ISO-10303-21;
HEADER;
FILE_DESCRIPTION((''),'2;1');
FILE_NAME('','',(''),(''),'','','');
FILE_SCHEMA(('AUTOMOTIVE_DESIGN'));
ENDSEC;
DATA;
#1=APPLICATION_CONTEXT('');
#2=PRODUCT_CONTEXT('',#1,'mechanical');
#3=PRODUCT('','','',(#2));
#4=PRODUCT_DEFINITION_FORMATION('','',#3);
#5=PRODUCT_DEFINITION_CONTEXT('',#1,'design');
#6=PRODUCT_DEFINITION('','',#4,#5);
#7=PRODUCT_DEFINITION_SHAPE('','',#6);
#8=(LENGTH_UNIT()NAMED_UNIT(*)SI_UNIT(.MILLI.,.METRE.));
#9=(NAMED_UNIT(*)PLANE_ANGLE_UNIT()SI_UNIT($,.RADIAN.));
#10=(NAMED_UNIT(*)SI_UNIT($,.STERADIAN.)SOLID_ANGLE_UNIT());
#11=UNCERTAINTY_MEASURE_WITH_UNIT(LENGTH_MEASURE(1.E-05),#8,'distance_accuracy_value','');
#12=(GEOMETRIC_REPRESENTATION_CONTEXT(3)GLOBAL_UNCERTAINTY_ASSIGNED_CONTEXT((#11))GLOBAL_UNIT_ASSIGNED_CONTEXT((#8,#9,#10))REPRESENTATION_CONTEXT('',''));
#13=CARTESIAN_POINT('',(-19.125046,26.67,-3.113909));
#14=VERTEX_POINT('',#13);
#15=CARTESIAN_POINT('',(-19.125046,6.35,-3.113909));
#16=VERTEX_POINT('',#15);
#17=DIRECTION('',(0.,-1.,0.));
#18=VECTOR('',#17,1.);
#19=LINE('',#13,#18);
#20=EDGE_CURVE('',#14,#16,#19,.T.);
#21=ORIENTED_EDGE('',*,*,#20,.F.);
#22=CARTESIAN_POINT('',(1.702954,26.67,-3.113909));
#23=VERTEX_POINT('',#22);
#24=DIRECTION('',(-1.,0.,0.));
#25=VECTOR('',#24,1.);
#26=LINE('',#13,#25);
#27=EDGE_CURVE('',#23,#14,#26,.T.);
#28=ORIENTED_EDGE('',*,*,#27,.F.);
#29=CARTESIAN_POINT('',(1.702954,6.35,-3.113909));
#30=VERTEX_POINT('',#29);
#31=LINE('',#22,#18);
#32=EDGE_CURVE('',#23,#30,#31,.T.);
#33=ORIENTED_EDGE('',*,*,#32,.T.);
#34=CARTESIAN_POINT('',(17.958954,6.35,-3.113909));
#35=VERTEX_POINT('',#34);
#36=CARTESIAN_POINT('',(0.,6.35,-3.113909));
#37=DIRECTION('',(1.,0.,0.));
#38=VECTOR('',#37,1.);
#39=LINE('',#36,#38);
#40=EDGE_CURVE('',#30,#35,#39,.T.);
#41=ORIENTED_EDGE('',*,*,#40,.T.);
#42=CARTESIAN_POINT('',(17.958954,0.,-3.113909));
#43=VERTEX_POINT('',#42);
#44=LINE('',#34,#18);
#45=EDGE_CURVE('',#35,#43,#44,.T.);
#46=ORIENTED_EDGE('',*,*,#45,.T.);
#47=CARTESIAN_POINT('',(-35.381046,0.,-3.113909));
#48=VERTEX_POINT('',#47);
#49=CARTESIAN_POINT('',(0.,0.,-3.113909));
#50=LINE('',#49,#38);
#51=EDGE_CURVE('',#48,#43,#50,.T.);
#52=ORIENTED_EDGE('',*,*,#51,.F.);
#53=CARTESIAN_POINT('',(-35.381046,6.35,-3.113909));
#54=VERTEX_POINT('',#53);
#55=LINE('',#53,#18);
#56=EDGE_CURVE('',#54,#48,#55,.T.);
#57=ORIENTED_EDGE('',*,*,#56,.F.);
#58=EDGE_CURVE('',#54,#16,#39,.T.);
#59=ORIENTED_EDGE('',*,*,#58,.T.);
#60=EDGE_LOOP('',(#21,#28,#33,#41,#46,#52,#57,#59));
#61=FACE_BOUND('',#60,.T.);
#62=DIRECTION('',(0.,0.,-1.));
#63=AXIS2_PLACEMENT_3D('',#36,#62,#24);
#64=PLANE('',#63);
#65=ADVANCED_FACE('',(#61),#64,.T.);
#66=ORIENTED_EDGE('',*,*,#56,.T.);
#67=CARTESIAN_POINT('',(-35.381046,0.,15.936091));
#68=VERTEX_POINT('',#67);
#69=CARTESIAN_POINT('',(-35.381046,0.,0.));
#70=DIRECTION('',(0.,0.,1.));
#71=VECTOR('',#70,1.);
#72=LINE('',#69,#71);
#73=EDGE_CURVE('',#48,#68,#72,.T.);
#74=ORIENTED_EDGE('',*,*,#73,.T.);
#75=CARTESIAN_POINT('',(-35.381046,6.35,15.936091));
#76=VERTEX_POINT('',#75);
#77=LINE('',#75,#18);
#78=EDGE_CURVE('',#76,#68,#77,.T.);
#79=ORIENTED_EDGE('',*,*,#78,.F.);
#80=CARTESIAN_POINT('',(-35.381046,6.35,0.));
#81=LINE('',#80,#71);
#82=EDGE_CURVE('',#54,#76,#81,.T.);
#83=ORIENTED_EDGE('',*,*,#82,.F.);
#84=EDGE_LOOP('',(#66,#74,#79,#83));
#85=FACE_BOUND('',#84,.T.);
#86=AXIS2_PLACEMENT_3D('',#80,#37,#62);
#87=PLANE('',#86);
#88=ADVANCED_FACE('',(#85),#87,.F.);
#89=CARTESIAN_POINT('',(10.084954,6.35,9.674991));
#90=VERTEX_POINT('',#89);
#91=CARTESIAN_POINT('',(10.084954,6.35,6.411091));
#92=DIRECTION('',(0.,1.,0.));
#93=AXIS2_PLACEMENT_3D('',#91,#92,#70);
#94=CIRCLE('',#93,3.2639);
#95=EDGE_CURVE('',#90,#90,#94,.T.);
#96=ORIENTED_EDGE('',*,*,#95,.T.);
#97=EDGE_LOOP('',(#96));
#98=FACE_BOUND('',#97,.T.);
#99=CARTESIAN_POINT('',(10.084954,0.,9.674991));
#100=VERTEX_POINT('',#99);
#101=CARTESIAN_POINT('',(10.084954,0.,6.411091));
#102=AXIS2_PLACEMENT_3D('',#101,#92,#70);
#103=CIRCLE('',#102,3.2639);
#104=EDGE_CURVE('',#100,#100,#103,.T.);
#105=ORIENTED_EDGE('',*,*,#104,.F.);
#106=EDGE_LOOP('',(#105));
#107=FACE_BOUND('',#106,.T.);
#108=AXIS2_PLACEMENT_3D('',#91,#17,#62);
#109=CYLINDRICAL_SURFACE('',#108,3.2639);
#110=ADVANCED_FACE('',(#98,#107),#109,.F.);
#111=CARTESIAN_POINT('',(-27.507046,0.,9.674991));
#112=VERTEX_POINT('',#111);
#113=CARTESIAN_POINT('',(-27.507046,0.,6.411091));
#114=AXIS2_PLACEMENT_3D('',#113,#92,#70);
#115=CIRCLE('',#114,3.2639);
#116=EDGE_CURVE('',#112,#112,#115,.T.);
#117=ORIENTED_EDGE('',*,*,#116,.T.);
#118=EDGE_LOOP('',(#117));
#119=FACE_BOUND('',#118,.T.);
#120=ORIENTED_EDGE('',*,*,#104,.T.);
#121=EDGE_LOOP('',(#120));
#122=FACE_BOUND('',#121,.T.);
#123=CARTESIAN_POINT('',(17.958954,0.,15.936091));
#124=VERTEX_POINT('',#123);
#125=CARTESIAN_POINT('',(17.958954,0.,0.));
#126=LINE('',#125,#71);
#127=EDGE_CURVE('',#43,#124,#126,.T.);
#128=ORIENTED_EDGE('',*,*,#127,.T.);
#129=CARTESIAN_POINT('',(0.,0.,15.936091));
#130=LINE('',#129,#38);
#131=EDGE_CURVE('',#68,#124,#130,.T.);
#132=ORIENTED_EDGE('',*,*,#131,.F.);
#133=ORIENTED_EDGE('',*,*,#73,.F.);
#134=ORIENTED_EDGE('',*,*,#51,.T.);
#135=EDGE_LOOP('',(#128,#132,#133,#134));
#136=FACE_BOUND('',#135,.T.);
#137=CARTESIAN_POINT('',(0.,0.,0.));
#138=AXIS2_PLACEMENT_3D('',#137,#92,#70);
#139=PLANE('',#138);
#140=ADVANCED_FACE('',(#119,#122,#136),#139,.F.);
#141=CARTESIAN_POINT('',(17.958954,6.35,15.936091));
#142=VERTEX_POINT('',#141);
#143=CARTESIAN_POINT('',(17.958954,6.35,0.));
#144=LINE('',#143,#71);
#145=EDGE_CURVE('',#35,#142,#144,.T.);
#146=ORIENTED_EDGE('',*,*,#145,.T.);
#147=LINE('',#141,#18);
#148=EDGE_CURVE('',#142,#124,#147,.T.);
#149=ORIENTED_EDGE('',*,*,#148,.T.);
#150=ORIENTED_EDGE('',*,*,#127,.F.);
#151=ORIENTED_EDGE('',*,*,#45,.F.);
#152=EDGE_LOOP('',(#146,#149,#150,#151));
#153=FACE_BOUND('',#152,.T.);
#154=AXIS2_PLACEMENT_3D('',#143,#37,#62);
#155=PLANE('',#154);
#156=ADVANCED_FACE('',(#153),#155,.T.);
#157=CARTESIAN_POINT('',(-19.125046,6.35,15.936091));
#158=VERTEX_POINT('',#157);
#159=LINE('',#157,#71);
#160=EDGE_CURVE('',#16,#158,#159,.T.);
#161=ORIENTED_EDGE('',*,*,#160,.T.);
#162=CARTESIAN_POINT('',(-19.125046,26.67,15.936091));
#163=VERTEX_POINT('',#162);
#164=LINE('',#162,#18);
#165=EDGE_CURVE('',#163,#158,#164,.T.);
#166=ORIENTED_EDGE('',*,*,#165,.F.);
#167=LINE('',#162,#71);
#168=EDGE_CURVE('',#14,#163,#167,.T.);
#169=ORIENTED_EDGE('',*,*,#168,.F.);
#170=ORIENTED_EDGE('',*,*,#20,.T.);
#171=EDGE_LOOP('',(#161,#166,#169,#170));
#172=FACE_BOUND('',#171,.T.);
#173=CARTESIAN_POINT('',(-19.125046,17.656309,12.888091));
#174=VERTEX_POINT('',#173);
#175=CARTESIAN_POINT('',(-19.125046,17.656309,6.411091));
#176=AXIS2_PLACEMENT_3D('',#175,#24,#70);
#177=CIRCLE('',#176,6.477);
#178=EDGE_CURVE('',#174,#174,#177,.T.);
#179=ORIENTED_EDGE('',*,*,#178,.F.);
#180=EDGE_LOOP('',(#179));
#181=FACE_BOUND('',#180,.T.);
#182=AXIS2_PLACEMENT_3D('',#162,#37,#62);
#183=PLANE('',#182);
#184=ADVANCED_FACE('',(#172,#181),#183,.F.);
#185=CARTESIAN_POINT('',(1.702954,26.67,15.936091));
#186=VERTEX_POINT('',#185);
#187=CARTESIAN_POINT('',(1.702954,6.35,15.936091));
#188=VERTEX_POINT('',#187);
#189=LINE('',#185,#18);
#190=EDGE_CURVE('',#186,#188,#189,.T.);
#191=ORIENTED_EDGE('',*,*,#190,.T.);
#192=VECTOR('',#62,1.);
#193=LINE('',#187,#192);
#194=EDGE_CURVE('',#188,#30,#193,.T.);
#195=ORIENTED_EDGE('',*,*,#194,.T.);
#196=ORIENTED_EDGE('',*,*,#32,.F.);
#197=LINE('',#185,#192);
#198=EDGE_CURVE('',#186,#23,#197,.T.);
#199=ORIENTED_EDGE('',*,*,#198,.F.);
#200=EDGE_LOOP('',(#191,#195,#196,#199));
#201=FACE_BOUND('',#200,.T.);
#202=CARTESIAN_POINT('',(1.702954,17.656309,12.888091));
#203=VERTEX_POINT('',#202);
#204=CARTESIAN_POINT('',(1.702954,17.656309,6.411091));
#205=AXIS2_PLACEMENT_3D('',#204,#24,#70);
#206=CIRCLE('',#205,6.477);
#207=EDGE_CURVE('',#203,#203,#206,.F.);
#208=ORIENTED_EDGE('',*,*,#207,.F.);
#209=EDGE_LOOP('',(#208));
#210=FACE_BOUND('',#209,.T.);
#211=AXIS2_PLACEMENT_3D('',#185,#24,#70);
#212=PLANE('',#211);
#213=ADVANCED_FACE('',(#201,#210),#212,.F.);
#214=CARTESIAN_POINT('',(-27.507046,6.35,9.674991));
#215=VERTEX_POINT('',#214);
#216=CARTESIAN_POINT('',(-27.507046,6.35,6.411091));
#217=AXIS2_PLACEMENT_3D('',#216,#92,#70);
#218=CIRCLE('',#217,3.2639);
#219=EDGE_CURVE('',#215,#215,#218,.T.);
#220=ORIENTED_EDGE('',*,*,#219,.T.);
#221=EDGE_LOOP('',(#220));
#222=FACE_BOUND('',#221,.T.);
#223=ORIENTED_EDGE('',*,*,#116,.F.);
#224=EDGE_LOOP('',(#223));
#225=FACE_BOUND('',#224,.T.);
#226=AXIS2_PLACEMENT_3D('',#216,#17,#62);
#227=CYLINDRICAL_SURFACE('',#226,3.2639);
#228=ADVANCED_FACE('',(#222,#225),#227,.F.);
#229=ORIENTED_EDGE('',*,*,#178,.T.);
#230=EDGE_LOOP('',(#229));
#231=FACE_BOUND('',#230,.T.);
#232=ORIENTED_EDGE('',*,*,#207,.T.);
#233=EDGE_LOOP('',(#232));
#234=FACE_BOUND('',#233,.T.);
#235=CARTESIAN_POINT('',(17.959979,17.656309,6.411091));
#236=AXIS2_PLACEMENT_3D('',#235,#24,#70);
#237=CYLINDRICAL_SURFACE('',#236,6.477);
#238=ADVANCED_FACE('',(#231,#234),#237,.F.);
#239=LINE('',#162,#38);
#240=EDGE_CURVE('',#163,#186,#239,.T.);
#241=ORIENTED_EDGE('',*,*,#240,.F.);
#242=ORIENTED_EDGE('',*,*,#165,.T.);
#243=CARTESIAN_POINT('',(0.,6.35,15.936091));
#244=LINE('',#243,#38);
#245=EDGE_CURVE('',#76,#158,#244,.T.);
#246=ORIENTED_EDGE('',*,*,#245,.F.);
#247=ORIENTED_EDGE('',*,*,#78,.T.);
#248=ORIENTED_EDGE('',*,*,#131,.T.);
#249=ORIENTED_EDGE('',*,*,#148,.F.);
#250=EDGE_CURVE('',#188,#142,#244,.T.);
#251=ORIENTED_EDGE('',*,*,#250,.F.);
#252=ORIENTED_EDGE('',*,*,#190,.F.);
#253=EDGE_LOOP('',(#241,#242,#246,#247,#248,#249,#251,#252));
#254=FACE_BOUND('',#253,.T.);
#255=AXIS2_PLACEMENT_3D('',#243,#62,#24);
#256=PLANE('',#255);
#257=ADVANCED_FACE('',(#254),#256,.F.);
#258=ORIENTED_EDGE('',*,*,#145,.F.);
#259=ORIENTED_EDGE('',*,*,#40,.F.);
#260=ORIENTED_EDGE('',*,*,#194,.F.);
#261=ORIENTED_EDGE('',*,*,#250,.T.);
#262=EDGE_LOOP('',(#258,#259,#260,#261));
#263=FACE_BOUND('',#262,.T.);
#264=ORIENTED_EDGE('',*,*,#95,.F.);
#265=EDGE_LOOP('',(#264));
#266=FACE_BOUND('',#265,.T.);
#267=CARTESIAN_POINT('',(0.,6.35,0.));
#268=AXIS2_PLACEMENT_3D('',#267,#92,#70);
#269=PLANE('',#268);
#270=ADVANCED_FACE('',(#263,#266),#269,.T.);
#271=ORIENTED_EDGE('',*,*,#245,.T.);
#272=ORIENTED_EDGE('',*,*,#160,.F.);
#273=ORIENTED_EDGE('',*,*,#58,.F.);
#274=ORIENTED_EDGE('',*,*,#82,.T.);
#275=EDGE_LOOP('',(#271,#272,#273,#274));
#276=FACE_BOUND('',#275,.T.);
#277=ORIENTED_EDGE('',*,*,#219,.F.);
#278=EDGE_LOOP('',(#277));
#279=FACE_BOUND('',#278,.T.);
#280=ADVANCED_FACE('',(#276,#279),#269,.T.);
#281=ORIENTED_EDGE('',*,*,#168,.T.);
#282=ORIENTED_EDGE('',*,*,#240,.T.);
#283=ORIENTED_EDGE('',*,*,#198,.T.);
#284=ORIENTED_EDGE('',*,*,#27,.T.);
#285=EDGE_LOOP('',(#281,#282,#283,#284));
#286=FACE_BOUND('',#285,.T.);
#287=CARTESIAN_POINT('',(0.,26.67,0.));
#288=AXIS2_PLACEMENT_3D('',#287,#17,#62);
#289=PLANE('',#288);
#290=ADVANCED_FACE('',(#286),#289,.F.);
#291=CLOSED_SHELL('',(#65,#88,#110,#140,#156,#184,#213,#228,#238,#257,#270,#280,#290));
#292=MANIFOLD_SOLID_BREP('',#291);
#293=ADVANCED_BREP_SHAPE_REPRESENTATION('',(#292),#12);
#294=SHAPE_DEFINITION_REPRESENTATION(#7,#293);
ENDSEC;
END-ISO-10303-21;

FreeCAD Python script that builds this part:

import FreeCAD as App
import Part
import Sketcher

V = App.Vector
Q = App.Units.Quantity

doc = App.newDocument("Part")
body = doc.addObject("PartDesign::Body", "Body")

sketch1 = body.newObject("Sketcher::SketchObject", "Sketch")
sketch1.AttachmentSupport = (doc.getObject("XZ_Plane"), [""])
sketch1.MapMode = "FlatFace"
sketch1.addGeometry(Part.LineSegment(V(-35.4, -3.1, 0), V(-35.4, 15.9, 0)), False)
sketch1.addGeometry(Part.LineSegment(V(-35.4, 15.9, 0), V(18, 15.9, 0)), False)
sketch1.addGeometry(Part.LineSegment(V(18, 15.9, 0), V(18, -3.1, 0)), False)
sketch1.addGeometry(Part.LineSegment(V(18, -3.1, 0), V(-35.4, -3.1, 0)), False)
sketch1.addGeometry(Part.Circle(V(-27.5, 6.4, 0), V(0, 0, 1), 3.3), False)
sketch1.addGeometry(Part.Circle(V(10.1, 6.4, 0), V(0, 0, 1), 3.3), False)
sketch1.addConstraint(Sketcher.Constraint("Coincident", 0, 2, 1, 1))
sketch1.addConstraint(Sketcher.Constraint("Coincident", 1, 2, 2, 1))
sketch1.addConstraint(Sketcher.Constraint("Coincident", 2, 2, 3, 1))
sketch1.addConstraint(Sketcher.Constraint("Coincident", 3, 2, 0, 1))
sketch1.addConstraint(Sketcher.Constraint("Vertical", 0))
sketch1.addConstraint(Sketcher.Constraint("Horizontal", 1))
sketch1.addConstraint(Sketcher.Constraint("Vertical", 2))
sketch1.addConstraint(Sketcher.Constraint("Horizontal", 3))
sketch1.addConstraint(Sketcher.Constraint("Equal", 4, 5))
sketch1.addConstraint(Sketcher.Constraint("Horizontal", 4, 3, 5, 3))
sketch1.addConstraint(Sketcher.Constraint("Diameter", 4, Q("0.257 in")))
sketch1.addConstraint(Sketcher.Constraint("DistanceX", 1, 1, 1, 2, Q("2.1 in")))
sketch1.addConstraint(Sketcher.Constraint("DistanceY", 0, 1, 0, 2, Q("0.75 in")))
sketch1.addConstraint(Sketcher.Constraint("DistanceX", 4, 3, 5, 3, Q("1.48 in")))
sketch1.addConstraint(Sketcher.Constraint("DistanceX", 0, 2, 4, 3, Q("0.31 in")))
sketch1.addConstraint(Sketcher.Constraint("DistanceY", 4, 3, 0, 2, Q("0.375 in")))
sketch1.addConstraint(Sketcher.Constraint("DistanceY", -1, 1, 4, 3, 6.411091))
sketch1.addConstraint(Sketcher.Constraint("DistanceX", 4, 3, -1, 1, 27.507046))
pad1 = body.newObject("PartDesign::Pad", "Pad")
pad1.Profile = sketch1
pad1.Length = Q("0.25 in")
pad1.Reversed = True

sketch2 = body.newObject("Sketcher::SketchObject", "Sketch001")
sketch2.AttachmentSupport = (doc.getObject("XZ_Plane"), [""])
sketch2.MapMode = "FlatFace"
sketch2.AttachmentOffset = App.Placement(V(0, 0, -0.25 * 25.4), App.Rotation())
sketch2.addGeometry(Part.LineSegment(V(-19, -3, 0), V(-19, 16, 0)), False)
sketch2.addGeometry(Part.LineSegment(V(-19, 16, 0), V(2, 16, 0)), False)
sketch2.addGeometry(Part.LineSegment(V(2, 16, 0), V(2, -3, 0)), False)
sketch2.addGeometry(Part.LineSegment(V(2, -3, 0), V(-19, -3, 0)), False)
sketch2.addConstraint(Sketcher.Constraint("Coincident", 0, 2, 1, 1))
sketch2.addConstraint(Sketcher.Constraint("Coincident", 1, 2, 2, 1))
sketch2.addConstraint(Sketcher.Constraint("Coincident", 2, 2, 3, 1))
sketch2.addConstraint(Sketcher.Constraint("Coincident", 3, 2, 0, 1))
sketch2.addConstraint(Sketcher.Constraint("Vertical", 0))
sketch2.addConstraint(Sketcher.Constraint("Horizontal", 1))
sketch2.addConstraint(Sketcher.Constraint("Vertical", 2))
sketch2.addConstraint(Sketcher.Constraint("Horizontal", 3))
sketch2.addConstraint(Sketcher.Constraint("DistanceX", 1, 1, 1, 2, Q("0.82 in")))
sketch2.addConstraint(Sketcher.Constraint("DistanceY", 0, 1, 0, 2, Q("0.75 in")))
sketch2.addConstraint(Sketcher.Constraint("DistanceY", -1, 1, 0, 2, 15.936091))
sketch2.addConstraint(Sketcher.Constraint("DistanceX", 0, 2, -1, 1, 19.125046))
pad2 = body.newObject("PartDesign::Pad", "Pad001")
pad2.Profile = sketch2
pad2.Length = Q("0.8 in")
pad2.Reversed = True

sketch3 = body.newObject("Sketcher::SketchObject", "Sketch002")
sketch3.AttachmentSupport = (doc.getObject("YZ_Plane"), [""])
sketch3.MapMode = "FlatFace"
sketch3.AttachmentOffset = App.Placement(V(0, 0, -19.125046), App.Rotation())
sketch3.addGeometry(Part.Circle(V(18, 6, 0), V(0, 0, 1), 6), False)
sketch3.addConstraint(Sketcher.Constraint("Diameter", 0, Q("0.51 in")))
sketch3.addConstraint(Sketcher.Constraint("DistanceX", -1, 1, 0, 3, 17.656309))
sketch3.addConstraint(Sketcher.Constraint("DistanceY", -1, 1, 0, 3, 6.411091))
pocket1 = body.newObject("PartDesign::Pocket", "Pocket")
pocket1.Profile = sketch3
pocket1.Type = "UpToFirst"
pocket1.Reversed = True

doc.recompute()
